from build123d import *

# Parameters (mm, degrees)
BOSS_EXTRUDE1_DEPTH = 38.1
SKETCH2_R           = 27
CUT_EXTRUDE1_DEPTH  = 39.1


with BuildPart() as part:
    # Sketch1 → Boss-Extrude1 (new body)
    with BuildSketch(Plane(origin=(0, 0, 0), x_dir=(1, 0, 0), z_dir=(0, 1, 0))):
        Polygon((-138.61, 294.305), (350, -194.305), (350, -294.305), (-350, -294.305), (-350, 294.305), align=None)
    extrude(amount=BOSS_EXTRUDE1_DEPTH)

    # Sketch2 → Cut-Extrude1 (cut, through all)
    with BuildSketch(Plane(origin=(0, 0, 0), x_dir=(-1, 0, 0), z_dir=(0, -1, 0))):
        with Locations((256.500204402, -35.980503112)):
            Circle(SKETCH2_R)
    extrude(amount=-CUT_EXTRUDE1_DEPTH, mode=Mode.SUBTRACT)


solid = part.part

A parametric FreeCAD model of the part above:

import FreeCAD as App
import Part
import Sketcher
Q = App.Units.Quantity

doc = App.newDocument("Part")
body = doc.addObject("PartDesign::Body", "Body")

# Sketch on XZ plane
sketch1 = body.newObject("Sketcher::SketchObject", "Sketch")
sketch1.AttachmentSupport = (doc.getObject("XZ_Plane"), [""])
sketch1.MapMode = "FlatFace"
sketch1.addGeometry([
    Part.LineSegment(App.Vector(350, 194, 0), App.Vector(-139, -294, 0)),  # 0
    Part.LineSegment(App.Vector(-139, -294, 0), App.Vector(-350, -294, 0)),  # 1
    Part.LineSegment(App.Vector(-350, -294, 0), App.Vector(-350, 294, 0)),  # 2
    Part.LineSegment(App.Vector(-350, 294, 0), App.Vector(350, 294, 0)),  # 3
    Part.LineSegment(App.Vector(350, 294, 0), App.Vector(350, 194, 0)),  # 4
], False)
sketch1.addConstraint([
    Sketcher.Constraint("Coincident", 0, 2, 1, 1),
    Sketcher.Constraint("Coincident", 1, 2, 2, 1),
    Sketcher.Constraint("Coincident", 2, 2, 3, 1),
    Sketcher.Constraint("Coincident", 3, 2, 4, 1),
    Sketcher.Constraint("Coincident", 4, 2, 0, 1),
    Sketcher.Constraint("Horizontal", 1),
    Sketcher.Constraint("Vertical", 2),
    Sketcher.Constraint("Horizontal", 3),
    Sketcher.Constraint("Vertical", 4),
    Sketcher.Constraint("Symmetric", 1, 2, 3, 2, -1, 1),
    Sketcher.Constraint("DistanceX", 3, 1, 3, 2, Q("700 mm")),
    Sketcher.Constraint("DistanceY", 4, 2, 4, 1, Q("100 mm")),
    Sketcher.Constraint("Angle", 0, Q("-135 deg")),
    Sketcher.Constraint("DistanceX", 1, 2, 1, 1, Q("211.39 mm")),
])
pad1 = body.newObject("PartDesign::Pad", "Pad")
pad1.Profile = sketch1
pad1.Length = 38.1
pad1.Reversed = True

# Sketch on XZ plane
sketch2 = body.newObject("Sketcher::SketchObject", "Sketch001")
sketch2.AttachmentSupport = (doc.getObject("XZ_Plane"), [""])
sketch2.MapMode = "FlatFace"
sketch2.addGeometry(Part.Circle(App.Vector(-257, 36, 0), App.Vector(0, 0, 1), 27), False)
sketch2.addConstraint([
    Sketcher.Constraint("Diameter", 0, Q("54 mm")),
    Sketcher.Constraint("DistanceX", 0, 3, -1, 1, Q("256.500204 mm")),
    Sketcher.Constraint("DistanceY", -1, 1, 0, 3, Q("35.980503 mm")),
])
pocket1 = body.newObject("PartDesign::Pocket", "Pocket")
pocket1.Profile = sketch2
pocket1.Type = "ThroughAll"

doc.recompute()
